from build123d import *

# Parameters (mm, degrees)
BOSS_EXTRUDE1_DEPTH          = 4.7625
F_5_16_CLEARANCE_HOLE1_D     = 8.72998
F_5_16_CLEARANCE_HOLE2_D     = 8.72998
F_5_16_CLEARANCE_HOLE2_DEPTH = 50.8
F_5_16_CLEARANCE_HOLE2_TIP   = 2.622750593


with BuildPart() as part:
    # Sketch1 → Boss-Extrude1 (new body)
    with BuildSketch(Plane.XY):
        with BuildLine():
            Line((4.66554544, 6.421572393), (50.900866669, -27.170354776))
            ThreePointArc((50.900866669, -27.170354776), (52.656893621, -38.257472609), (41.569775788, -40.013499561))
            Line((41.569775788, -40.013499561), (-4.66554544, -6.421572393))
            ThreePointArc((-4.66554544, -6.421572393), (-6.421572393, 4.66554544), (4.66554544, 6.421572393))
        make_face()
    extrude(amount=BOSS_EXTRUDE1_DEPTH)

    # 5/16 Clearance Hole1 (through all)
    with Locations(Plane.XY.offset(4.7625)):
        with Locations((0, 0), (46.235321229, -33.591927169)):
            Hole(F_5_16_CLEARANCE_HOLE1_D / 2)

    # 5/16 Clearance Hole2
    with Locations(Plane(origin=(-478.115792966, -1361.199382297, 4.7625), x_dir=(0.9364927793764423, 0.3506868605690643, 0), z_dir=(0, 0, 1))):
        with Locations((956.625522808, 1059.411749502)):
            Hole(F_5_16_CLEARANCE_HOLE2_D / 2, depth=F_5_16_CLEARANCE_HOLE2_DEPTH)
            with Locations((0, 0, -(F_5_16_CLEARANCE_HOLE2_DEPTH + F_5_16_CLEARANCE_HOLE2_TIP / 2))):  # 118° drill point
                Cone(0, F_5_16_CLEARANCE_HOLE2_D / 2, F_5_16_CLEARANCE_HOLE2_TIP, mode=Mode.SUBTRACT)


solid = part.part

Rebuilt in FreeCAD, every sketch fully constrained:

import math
import FreeCAD as App
import Part
import Sketcher
from FreeCAD import Vector
Q = App.Units.Quantity

doc = App.newDocument("Part")
body = doc.addObject("PartDesign::Body", "Body")

sketch1 = body.newObject("Sketcher::SketchObject", "Sketch")
sketch1.AttachmentSupport = (doc.getObject("XY_Plane"), [""])
sketch1.MapMode = "FlatFace"
sketch1.addGeometry([
    Part.LineSegment(Vector(51, -27, 0), Vector(5, 6, 0)),
    Part.ArcOfCircle(Part.Circle(Vector(0, 0, 0), Vector(0, 0, 1), 8), math.radians(54), math.radians(234)),
    Part.LineSegment(Vector(-5, -6, 0), Vector(42, -40, 0)),
    Part.ArcOfCircle(Part.Circle(Vector(46, -34, 0), Vector(0, 0, 1), 8), math.radians(-126), math.radians(54)),
], False)
sketch1.addConstraint([
    Sketcher.Constraint("Tangent", 0, 2, 1, 1),
    Sketcher.Constraint("Tangent", 1, 2, 2, 1),
    Sketcher.Constraint("Tangent", 2, 2, 3, 1),
    Sketcher.Constraint("Tangent", 3, 2, 0, 1),
    Sketcher.Constraint("Coincident", 1, 3, -1, 1),
    Sketcher.Constraint("Equal", 1, 3),
    Sketcher.Constraint("Angle", 0, Q("144 deg")),
    Sketcher.Constraint("Radius", 1, Q("0.3125 in")),
    Sketcher.Constraint("Distance", 0, Q("2.25 in")),
])
pad1 = body.newObject("PartDesign::Pad", "Pad")
pad1.Profile = sketch1
pad1.Length = Q("0.1875 in")

sketch2 = body.newObject("Sketcher::SketchObject", "Sketch001")
sketch2.AttachmentSupport = (doc.getObject("XY_Plane"), [""])
sketch2.MapMode = "FlatFace"
sketch2.AttachmentOffset = App.Placement(Vector(0, 0, 0.1875 * 25.4), App.Rotation())
sketch2.addGeometry([
    Part.Circle(Vector(0, 0, 0), Vector(0, 0, 1), 4.4),
    Part.Circle(Vector(46.2, -33.6, 0), Vector(0, 0, 1), 4.4),
], False)
sketch2.addConstraint([
    Sketcher.Constraint("Coincident", 0, 3, -1, 1),
    Sketcher.Constraint("Equal", 0, 1),
    Sketcher.Constraint("Diameter", 0, Q("0.3437 in")),
    Sketcher.Constraint("DistanceX", -1, 1, 1, 3, Q("46.235321 mm")),
    Sketcher.Constraint("DistanceY", 1, 3, -1, 1, Q("33.591927 mm")),
])
doc.recompute()
hole = body.newObject("PartDesign::Hole", "Hole")
hole.Profile = sketch2
hole.ThreadType = "None"
hole.Diameter = Q("0.3437 in")
hole.DepthType = "ThroughAll"

sketch3 = body.newObject("Sketcher::SketchObject", "Sketch002")
sketch3.AttachmentSupport = (doc.getObject("XY_Plane"), [""])
sketch3.MapMode = "FlatFace"
sketch3.AttachmentOffset = App.Placement(Vector(0, 0, 0.1875 * 25.4), App.Rotation())
sketch3.addGeometry(Part.Circle(Vector(46.2, -33.6, 0), Vector(0, 0, 1), 4.4), False)
sketch3.addConstraint([
    Sketcher.Constraint("Diameter", 0, Q("0.3437 in")),
    Sketcher.Constraint("DistanceX", -1, 1, 0, 3, Q("46.235321 mm")),
    Sketcher.Constraint("DistanceY", 0, 3, -1, 1, Q("33.591927 mm")),
])
doc.recompute()
hole2 = body.newObject("PartDesign::Hole", "Hole001")
hole2.Profile = sketch3
hole2.ThreadType = "None"
hole2.Diameter = Q("0.3437 in")
hole2.DepthType = "Dimension"
hole2.Depth = Q("2 in")
hole2.DrillPoint = "Angled"
hole2.DrillPointAngle = 118

doc.recompute()
